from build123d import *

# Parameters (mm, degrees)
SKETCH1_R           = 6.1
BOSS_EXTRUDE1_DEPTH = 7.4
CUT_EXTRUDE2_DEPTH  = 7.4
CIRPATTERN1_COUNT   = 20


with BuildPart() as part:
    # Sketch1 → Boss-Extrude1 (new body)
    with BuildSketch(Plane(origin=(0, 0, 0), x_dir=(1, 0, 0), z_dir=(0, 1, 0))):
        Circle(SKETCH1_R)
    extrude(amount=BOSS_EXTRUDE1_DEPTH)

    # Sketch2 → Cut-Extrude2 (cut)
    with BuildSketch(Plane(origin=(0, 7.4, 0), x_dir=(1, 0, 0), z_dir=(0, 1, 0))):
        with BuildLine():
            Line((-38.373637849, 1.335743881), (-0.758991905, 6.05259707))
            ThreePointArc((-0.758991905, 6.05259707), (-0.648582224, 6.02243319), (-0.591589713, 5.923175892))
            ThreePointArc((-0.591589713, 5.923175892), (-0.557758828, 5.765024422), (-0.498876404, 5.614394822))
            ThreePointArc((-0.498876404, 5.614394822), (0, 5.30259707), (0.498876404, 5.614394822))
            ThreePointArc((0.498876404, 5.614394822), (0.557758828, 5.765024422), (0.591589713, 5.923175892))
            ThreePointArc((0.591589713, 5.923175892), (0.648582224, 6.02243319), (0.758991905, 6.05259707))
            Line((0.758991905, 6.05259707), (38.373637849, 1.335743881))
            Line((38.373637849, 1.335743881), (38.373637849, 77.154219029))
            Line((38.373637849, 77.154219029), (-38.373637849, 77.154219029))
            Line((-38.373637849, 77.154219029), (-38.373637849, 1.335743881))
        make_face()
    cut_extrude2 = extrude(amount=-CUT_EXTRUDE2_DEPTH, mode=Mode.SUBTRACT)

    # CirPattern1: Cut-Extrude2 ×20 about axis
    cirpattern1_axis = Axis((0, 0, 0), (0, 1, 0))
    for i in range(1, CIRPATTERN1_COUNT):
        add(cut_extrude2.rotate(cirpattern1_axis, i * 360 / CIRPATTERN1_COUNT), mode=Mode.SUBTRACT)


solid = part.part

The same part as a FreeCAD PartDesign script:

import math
import FreeCAD as App
import Part
import Sketcher

V = App.Vector

doc = App.newDocument("Part")
body = doc.addObject("PartDesign::Body", "Body")

# Sketch on XZ plane
sketch1 = body.newObject("Sketcher::SketchObject", "Sketch")
sketch1.AttachmentSupport = (doc.getObject("XZ_Plane"), [""])
sketch1.MapMode = "FlatFace"
sketch1.addGeometry(Part.Circle(V(0, 0, 0), V(0, 0, 1), 6), False)
sketch1.addConstraint(Sketcher.Constraint("Coincident", 0, 3, -1, 1))
sketch1.addConstraint(Sketcher.Constraint("Diameter", 0, 12.2))
pad1 = body.newObject("PartDesign::Pad", "Pad")
pad1.Profile = sketch1
pad1.Length = 7.4
pad1.Reversed = True

# Sketch on XZ plane
sketch2 = body.newObject("Sketcher::SketchObject", "Sketch001")
sketch2.AttachmentSupport = (doc.getObject("XZ_Plane"), [""])
sketch2.MapMode = "FlatFace"
sketch2.AttachmentOffset = App.Placement(V(0, 0, -7.4), App.Rotation())
sketch2.addGeometry(Part.LineSegment(V(-38.373638, -1.335744, 0), V(-0.758992, -6.052597, 0)), False)
sketch2.addGeometry(Part.ArcOfCircle(Part.Circle(V(-0.740328, -5.903763, 0), V(0, 0, 1), 0.15), math.radians(-97.147546), math.radians(-7.436145)), False)
sketch2.addGeometry(Part.ArcOfCircle(Part.Circle(V(0.4, -6.052597, 0), V(0, 0, 1), 1), math.radians(154.010766), math.radians(172.563854)), False)
sketch2.addGeometry(Part.ArcOfCircle(Part.Circle(V(0, -5.857597, 0), V(0, 0, 1), 0.555), math.radians(25.989234), math.radians(154.010766)), False)
sketch2.addGeometry(Part.ArcOfCircle(Part.Circle(V(-0.4, -6.052597, 0), V(0, 0, 1), 1), math.radians(7.436146), math.radians(25.989234)), False)
sketch2.addGeometry(Part.ArcOfCircle(Part.Circle(V(0.740328, -5.903763, 0), V(0, 0, 1), 0.15), math.radians(-172.563855), math.radians(-82.852454)), False)
sketch2.addGeometry(Part.LineSegment(V(0.758992, -6.052597, 0), V(38.373638, -1.335744, 0)), False)
sketch2.addGeometry(Part.LineSegment(V(38.373638, -1.335744, 0), V(38.373638, -77.154219, 0)), False)
sketch2.addGeometry(Part.LineSegment(V(38.373638, -77.154219, 0), V(-38.373638, -77.154219, 0)), False)
sketch2.addGeometry(Part.LineSegment(V(-38.373638, -77.154219, 0), V(-38.373638, -1.335744, 0)), False)
sketch2.addConstraint(Sketcher.Constraint("Coincident", 0, 2, 1, 1))
sketch2.addConstraint(Sketcher.Constraint("Coincident", 1, 2, 2, 2))
sketch2.addConstraint(Sketcher.Constraint("Coincident", 2, 1, 3, 2))
sketch2.addConstraint(Sketcher.Constraint("Coincident", 3, 1, 4, 2))
sketch2.addConstraint(Sketcher.Constraint("Coincident", 4, 1, 5, 1))
sketch2.addConstraint(Sketcher.Constraint("Coincident", 5, 2, 6, 1))
sketch2.addConstraint(Sketcher.Constraint("Coincident", 6, 2, 7, 1))
sketch2.addConstraint(Sketcher.Constraint("Coincident", 7, 2, 8, 1))
sketch2.addConstraint(Sketcher.Constraint("Coincident", 8, 2, 9, 1))
sketch2.addConstraint(Sketcher.Constraint("Coincident", 9, 2, 0, 1))
sketch2.addConstraint(Sketcher.Constraint("Vertical", 7))
sketch2.addConstraint(Sketcher.Constraint("Horizontal", 8))
sketch2.addConstraint(Sketcher.Constraint("Vertical", 9))
sketch2.addConstraint(Sketcher.Constraint("PointOnObject", 3, 3, -2))
sketch2.addConstraint(Sketcher.Constraint("Radius", 2, 1.0))
sketch2.addConstraint(Sketcher.Constraint("Radius", 4, 1.0))
sketch2.addConstraint(Sketcher.Constraint("Radius", 1, 0.15))
sketch2.addConstraint(Sketcher.Constraint("Radius", 5, 0.15))
sketch2.addConstraint(Sketcher.Constraint("Radius", 3, 0.555))
sketch2.addConstraint(Sketcher.Constraint("DistanceX", -1, 1, 2, 3, 0.4))
sketch2.addConstraint(Sketcher.Constraint("DistanceX", 4, 3, -1, 1, 0.4))
sketch2.addConstraint(Sketcher.Constraint("DistanceY", 0, 2, 3, 3, 0.195))
sketch2.addConstraint(Sketcher.Constraint("DistanceY", 5, 2, 3, 3, 0.195))
sketch2.addConstraint(Sketcher.Constraint("DistanceX", 8, 2, 8, 1, 76.747276))
sketch2.addConstraint(Sketcher.Constraint("DistanceY", 7, 2, 7, 1, 75.818475))
sketch2.addConstraint(Sketcher.Constraint("DistanceY", 9, 1, 9, 2, 75.818475))
sketch2.addConstraint(Sketcher.Constraint("DistanceX", 1, 3, -1, 1, 0.740328))
sketch2.addConstraint(Sketcher.Constraint("DistanceX", -1, 1, 5, 3, 0.740328))
sketch2.addConstraint(Sketcher.Constraint("DistanceX", 1, 2, -1, 1, 0.59159))
sketch2.addConstraint(Sketcher.Constraint("DistanceX", -1, 1, 4, 1, 0.59159))
sketch2.addConstraint(Sketcher.Constraint("DistanceY", 7, 2, -1, 1, 77.154219))
sketch2.addConstraint(Sketcher.Constraint("DistanceY", 1, 2, 2, 1, 0.308781))
sketch2.addConstraint(Sketcher.Constraint("DistanceX", 3, 1, 5, 3, 0.241452))
sketch2.addConstraint(Sketcher.Constraint("DistanceX", 5, 3, 6, 2, 37.63331))
sketch2.addConstraint(Sketcher.Constraint("DistanceY", 5, 3, 6, 2, 4.568019))
pocket1 = body.newObject("PartDesign::Pocket", "Pocket")
pocket1.Profile = sketch2
pocket1.Length = 7.4
pocket1.Reversed = True
doc.recompute()

polarpattern = body.newObject("PartDesign::PolarPattern", "PolarPattern")
polarpattern.Originals = [pocket1]
polarpattern.Axis = (doc.getObject("Y_Axis"), [""])
polarpattern.Angle = 360
polarpattern.Occurrences = 20
body.Tip = polarpattern

doc.recompute()
